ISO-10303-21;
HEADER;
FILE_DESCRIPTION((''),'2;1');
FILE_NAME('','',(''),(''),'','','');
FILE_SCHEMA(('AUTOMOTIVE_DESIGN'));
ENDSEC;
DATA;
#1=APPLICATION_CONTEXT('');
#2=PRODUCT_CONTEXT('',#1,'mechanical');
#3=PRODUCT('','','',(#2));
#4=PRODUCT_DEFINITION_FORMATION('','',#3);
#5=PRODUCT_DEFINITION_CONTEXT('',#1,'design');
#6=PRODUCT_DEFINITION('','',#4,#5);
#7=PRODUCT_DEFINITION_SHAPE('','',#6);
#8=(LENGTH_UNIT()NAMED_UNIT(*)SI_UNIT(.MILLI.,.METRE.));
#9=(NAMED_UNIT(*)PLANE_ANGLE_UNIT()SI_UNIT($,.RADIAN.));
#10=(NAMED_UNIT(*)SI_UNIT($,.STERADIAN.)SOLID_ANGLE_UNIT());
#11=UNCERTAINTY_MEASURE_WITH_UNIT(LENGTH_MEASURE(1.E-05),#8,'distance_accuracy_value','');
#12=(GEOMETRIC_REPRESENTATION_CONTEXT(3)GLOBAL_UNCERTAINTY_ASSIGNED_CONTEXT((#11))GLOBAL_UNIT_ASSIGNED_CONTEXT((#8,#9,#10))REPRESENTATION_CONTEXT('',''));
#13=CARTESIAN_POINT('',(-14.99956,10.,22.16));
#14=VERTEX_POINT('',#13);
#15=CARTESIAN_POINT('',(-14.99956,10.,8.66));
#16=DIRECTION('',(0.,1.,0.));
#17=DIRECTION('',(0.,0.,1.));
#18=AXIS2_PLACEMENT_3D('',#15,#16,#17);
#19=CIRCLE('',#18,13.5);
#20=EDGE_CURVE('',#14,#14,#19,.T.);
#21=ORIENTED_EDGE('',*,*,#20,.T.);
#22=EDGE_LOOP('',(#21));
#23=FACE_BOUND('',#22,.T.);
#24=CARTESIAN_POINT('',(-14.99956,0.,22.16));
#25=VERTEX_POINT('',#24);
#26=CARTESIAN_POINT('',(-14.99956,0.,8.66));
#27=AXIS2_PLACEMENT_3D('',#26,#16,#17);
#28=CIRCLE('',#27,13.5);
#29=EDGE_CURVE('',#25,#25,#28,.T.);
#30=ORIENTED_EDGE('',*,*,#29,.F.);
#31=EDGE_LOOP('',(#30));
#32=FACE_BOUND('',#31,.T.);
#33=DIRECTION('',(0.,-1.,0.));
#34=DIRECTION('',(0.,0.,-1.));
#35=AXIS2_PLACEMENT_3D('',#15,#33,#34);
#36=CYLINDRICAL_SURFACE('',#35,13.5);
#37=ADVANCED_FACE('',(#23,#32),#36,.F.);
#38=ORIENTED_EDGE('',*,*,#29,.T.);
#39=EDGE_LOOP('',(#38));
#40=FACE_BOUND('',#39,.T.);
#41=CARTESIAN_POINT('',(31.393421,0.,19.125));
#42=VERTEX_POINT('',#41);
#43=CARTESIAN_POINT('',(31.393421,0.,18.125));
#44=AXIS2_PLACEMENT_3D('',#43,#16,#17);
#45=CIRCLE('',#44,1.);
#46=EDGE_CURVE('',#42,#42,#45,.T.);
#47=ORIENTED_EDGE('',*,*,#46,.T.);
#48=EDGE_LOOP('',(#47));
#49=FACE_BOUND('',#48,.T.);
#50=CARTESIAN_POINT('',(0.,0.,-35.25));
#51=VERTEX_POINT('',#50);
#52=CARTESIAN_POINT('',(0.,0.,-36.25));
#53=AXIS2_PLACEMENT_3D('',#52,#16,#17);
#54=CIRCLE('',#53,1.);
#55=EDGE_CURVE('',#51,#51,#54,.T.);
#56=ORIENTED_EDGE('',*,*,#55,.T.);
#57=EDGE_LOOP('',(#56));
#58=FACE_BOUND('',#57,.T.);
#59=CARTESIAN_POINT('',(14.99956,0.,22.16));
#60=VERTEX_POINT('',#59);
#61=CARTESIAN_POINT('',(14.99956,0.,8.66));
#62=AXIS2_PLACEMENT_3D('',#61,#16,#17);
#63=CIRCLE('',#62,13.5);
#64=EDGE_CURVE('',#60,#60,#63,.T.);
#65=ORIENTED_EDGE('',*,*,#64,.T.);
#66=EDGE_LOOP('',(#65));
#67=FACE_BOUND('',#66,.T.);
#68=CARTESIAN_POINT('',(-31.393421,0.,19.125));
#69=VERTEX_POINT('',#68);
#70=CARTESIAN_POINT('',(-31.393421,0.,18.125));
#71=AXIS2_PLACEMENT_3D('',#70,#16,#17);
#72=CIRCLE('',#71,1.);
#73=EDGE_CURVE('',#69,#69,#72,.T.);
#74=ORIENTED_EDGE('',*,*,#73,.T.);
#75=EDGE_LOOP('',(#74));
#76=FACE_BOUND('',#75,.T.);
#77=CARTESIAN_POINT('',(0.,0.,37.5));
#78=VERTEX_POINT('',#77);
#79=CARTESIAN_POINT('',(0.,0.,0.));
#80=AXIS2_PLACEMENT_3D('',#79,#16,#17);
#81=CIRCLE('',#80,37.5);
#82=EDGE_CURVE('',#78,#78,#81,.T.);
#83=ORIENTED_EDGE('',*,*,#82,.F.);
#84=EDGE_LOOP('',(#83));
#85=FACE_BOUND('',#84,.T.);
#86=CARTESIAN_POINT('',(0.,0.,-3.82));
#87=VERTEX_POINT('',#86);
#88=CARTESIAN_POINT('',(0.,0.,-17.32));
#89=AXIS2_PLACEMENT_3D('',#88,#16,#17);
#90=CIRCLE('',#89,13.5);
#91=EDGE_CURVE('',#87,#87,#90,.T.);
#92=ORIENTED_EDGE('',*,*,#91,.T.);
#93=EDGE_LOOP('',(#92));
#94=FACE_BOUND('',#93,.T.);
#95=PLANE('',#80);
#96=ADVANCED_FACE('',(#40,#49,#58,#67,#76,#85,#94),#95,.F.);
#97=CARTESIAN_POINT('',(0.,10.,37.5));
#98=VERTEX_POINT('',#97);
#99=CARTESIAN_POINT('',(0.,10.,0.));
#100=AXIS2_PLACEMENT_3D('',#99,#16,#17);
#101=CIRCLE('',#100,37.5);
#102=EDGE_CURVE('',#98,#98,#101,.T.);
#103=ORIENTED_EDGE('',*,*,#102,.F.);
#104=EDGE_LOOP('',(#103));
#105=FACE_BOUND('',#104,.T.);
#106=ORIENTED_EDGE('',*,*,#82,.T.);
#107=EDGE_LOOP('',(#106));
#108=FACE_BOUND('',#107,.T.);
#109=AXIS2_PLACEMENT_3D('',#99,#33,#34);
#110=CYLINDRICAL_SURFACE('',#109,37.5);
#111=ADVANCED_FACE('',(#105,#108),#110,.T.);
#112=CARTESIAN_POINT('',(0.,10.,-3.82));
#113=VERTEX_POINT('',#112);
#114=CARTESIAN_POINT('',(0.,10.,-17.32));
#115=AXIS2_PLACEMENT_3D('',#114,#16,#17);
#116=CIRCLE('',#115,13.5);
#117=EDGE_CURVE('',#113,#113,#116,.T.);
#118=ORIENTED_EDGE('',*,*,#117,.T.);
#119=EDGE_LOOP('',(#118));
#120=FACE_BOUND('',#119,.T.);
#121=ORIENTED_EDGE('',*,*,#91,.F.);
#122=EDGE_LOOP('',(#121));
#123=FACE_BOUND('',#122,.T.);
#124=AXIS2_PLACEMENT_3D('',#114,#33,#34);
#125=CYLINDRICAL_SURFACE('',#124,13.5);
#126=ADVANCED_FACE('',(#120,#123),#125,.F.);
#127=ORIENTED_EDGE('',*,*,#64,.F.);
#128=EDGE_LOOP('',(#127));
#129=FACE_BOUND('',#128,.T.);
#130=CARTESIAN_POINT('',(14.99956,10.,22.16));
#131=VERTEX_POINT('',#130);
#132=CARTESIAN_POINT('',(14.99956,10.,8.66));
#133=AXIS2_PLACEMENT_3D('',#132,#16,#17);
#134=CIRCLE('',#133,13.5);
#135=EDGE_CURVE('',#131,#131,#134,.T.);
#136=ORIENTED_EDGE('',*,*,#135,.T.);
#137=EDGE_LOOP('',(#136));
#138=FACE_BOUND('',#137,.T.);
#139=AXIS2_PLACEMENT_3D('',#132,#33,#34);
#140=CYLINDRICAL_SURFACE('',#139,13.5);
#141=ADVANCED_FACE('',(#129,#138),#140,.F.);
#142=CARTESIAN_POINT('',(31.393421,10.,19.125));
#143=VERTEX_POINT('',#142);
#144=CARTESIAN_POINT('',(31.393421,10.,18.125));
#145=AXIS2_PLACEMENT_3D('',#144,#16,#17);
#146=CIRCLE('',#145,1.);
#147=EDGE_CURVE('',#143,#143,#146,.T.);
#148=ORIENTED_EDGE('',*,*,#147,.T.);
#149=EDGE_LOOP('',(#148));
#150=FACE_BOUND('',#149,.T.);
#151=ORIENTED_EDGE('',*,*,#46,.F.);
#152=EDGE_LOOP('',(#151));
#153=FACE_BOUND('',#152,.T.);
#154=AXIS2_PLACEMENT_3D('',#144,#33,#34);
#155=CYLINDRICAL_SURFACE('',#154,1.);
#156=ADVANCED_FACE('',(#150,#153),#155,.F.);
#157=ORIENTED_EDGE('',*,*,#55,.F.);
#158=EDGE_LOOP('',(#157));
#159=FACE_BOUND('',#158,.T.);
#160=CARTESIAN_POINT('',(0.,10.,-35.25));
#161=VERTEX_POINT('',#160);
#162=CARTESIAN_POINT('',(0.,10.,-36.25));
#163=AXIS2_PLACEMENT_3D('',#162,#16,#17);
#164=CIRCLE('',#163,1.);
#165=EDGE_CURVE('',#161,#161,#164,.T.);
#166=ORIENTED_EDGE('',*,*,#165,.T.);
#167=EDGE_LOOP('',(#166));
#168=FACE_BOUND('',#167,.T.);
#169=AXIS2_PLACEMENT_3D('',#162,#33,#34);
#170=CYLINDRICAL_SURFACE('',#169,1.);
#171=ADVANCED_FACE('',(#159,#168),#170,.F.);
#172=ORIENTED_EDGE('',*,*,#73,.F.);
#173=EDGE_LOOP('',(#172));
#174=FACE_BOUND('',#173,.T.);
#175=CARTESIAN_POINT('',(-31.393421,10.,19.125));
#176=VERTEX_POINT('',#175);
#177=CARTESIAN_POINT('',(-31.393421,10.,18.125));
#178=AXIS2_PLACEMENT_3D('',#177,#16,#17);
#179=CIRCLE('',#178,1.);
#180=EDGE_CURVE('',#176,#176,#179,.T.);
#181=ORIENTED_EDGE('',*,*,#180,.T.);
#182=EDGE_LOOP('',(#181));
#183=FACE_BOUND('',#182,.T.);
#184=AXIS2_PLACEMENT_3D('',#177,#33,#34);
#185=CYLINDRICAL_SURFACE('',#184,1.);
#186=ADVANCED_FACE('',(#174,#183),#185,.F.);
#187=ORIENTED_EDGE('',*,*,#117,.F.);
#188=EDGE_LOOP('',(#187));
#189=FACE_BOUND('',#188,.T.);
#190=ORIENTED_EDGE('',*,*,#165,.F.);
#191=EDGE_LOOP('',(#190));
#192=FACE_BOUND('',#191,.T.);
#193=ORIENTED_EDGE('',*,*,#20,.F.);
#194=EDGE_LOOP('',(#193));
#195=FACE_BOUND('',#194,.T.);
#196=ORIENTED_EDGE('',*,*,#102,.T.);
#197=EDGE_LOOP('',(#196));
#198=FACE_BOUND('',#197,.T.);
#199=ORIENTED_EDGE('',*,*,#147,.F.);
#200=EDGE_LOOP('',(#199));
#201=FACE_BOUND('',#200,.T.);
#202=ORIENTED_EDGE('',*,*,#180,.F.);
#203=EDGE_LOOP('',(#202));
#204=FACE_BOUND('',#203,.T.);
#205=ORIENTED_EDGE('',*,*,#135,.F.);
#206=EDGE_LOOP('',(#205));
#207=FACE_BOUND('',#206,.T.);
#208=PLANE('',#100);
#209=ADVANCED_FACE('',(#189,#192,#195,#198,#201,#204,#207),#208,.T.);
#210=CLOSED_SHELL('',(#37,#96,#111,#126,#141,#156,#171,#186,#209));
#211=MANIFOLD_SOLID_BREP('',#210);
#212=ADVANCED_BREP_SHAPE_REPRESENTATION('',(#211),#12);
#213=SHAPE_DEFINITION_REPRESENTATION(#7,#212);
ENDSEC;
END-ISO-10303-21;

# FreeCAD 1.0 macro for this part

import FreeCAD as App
import Part
import Sketcher
Q = App.Units.Quantity

doc = App.newDocument("Part")
params = doc.addObject("Spreadsheet::Sheet", "Params")
for row, (alias, value) in enumerate([
    ("sketch1_diameter", "75 mm"),
    ("sketch1_diameter2", "2 mm"),
    ("sketch1_diameter3", "27 mm"),
    ("pad1_length", "10 mm"),
], start=1):
    params.set(f"A{row}", alias)
    params.set(f"B{row}", "=" + value)
    params.setAlias(f"B{row}", alias)

body = doc.addObject("PartDesign::Body", "Body")

# Sketch on XZ plane
sketch1 = body.newObject("Sketcher::SketchObject", "Sketch")
sketch1.AttachmentSupport = (doc.getObject("XZ_Plane"), [""])
sketch1.MapMode = "FlatFace"
sketch1.addGeometry(Part.Circle(App.Vector(0, 0, 0), App.Vector(0, 0, 1), 37.5), False)
sketch1.addGeometry(Part.Circle(App.Vector(-31.4, 18.1, 0), App.Vector(0, 0, 1), 1), False)
sketch1.addGeometry(Part.Circle(App.Vector(-15, 8.7, 0), App.Vector(0, 0, 1), 13.5), False)
sketch1.addGeometry(Part.Circle(App.Vector(15, 8.7, 0), App.Vector(0, 0, 1), 13.5), False)
sketch1.addGeometry(Part.Circle(App.Vector(31.4, 18.1, 0), App.Vector(0, 0, 1), 1), False)
sketch1.addGeometry(Part.Circle(App.Vector(0, -17.3, 0), App.Vector(0, 0, 1), 13.5), False)
sketch1.addGeometry(Part.Circle(App.Vector(0, -36.2, 0), App.Vector(0, 0, 1), 1), False)
sketch1.addConstraint(Sketcher.Constraint("Coincident", 0, 3, -1, 1))
sketch1.addConstraint(Sketcher.Constraint("Equal", 2, 3))
sketch1.addConstraint(Sketcher.Constraint("Equal", 1, 4))
sketch1.addConstraint(Sketcher.Constraint("Equal", 3, 5))
sketch1.addConstraint(Sketcher.Constraint("Equal", 4, 6))
sketch1.addConstraint(Sketcher.Constraint("Symmetric", 2, 3, 3, 3, -2))
sketch1.addConstraint(Sketcher.Constraint("Symmetric", 1, 3, 4, 3, -2))
sketch1.addConstraint(Sketcher.Constraint("PointOnObject", 5, 3, -2))
sketch1.addConstraint(Sketcher.Constraint("PointOnObject", 6, 3, -2))
sketch1.addConstraint(Sketcher.Constraint("Diameter", 0, Q("75 mm")))
sketch1.addConstraint(Sketcher.Constraint("Diameter", 1, Q("2 mm")))
sketch1.addConstraint(Sketcher.Constraint("Diameter", 2, Q("27 mm")))
sketch1.addConstraint(Sketcher.Constraint("DistanceY", -1, 1, 2, 3, Q("8.66 mm")))
sketch1.addConstraint(Sketcher.Constraint("DistanceY", 5, 3, -1, 1, Q("17.32 mm")))
sketch1.addConstraint(Sketcher.Constraint("DistanceY", 6, 3, -1, 1, Q("36.25 mm")))
sketch1.addConstraint(Sketcher.Constraint("DistanceY", -1, 1, 1, 3, Q("18.125 mm")))
sketch1.addConstraint(Sketcher.Constraint("DistanceX", 1, 3, -1, 1, Q("31.393421 mm")))
sketch1.addConstraint(Sketcher.Constraint("DistanceX", 2, 3, -1, 1, Q("14.99956 mm")))
sketch1.setExpression("Constraints[9]", "Params.sketch1_diameter")
sketch1.setExpression("Constraints[10]", "Params.sketch1_diameter2")
sketch1.setExpression("Constraints[11]", "Params.sketch1_diameter3")
pad1 = body.newObject("PartDesign::Pad", "Pad")
pad1.Profile = sketch1
pad1.setExpression("Length", "Params.pad1_length")
pad1.Reversed = True

doc.recompute()
